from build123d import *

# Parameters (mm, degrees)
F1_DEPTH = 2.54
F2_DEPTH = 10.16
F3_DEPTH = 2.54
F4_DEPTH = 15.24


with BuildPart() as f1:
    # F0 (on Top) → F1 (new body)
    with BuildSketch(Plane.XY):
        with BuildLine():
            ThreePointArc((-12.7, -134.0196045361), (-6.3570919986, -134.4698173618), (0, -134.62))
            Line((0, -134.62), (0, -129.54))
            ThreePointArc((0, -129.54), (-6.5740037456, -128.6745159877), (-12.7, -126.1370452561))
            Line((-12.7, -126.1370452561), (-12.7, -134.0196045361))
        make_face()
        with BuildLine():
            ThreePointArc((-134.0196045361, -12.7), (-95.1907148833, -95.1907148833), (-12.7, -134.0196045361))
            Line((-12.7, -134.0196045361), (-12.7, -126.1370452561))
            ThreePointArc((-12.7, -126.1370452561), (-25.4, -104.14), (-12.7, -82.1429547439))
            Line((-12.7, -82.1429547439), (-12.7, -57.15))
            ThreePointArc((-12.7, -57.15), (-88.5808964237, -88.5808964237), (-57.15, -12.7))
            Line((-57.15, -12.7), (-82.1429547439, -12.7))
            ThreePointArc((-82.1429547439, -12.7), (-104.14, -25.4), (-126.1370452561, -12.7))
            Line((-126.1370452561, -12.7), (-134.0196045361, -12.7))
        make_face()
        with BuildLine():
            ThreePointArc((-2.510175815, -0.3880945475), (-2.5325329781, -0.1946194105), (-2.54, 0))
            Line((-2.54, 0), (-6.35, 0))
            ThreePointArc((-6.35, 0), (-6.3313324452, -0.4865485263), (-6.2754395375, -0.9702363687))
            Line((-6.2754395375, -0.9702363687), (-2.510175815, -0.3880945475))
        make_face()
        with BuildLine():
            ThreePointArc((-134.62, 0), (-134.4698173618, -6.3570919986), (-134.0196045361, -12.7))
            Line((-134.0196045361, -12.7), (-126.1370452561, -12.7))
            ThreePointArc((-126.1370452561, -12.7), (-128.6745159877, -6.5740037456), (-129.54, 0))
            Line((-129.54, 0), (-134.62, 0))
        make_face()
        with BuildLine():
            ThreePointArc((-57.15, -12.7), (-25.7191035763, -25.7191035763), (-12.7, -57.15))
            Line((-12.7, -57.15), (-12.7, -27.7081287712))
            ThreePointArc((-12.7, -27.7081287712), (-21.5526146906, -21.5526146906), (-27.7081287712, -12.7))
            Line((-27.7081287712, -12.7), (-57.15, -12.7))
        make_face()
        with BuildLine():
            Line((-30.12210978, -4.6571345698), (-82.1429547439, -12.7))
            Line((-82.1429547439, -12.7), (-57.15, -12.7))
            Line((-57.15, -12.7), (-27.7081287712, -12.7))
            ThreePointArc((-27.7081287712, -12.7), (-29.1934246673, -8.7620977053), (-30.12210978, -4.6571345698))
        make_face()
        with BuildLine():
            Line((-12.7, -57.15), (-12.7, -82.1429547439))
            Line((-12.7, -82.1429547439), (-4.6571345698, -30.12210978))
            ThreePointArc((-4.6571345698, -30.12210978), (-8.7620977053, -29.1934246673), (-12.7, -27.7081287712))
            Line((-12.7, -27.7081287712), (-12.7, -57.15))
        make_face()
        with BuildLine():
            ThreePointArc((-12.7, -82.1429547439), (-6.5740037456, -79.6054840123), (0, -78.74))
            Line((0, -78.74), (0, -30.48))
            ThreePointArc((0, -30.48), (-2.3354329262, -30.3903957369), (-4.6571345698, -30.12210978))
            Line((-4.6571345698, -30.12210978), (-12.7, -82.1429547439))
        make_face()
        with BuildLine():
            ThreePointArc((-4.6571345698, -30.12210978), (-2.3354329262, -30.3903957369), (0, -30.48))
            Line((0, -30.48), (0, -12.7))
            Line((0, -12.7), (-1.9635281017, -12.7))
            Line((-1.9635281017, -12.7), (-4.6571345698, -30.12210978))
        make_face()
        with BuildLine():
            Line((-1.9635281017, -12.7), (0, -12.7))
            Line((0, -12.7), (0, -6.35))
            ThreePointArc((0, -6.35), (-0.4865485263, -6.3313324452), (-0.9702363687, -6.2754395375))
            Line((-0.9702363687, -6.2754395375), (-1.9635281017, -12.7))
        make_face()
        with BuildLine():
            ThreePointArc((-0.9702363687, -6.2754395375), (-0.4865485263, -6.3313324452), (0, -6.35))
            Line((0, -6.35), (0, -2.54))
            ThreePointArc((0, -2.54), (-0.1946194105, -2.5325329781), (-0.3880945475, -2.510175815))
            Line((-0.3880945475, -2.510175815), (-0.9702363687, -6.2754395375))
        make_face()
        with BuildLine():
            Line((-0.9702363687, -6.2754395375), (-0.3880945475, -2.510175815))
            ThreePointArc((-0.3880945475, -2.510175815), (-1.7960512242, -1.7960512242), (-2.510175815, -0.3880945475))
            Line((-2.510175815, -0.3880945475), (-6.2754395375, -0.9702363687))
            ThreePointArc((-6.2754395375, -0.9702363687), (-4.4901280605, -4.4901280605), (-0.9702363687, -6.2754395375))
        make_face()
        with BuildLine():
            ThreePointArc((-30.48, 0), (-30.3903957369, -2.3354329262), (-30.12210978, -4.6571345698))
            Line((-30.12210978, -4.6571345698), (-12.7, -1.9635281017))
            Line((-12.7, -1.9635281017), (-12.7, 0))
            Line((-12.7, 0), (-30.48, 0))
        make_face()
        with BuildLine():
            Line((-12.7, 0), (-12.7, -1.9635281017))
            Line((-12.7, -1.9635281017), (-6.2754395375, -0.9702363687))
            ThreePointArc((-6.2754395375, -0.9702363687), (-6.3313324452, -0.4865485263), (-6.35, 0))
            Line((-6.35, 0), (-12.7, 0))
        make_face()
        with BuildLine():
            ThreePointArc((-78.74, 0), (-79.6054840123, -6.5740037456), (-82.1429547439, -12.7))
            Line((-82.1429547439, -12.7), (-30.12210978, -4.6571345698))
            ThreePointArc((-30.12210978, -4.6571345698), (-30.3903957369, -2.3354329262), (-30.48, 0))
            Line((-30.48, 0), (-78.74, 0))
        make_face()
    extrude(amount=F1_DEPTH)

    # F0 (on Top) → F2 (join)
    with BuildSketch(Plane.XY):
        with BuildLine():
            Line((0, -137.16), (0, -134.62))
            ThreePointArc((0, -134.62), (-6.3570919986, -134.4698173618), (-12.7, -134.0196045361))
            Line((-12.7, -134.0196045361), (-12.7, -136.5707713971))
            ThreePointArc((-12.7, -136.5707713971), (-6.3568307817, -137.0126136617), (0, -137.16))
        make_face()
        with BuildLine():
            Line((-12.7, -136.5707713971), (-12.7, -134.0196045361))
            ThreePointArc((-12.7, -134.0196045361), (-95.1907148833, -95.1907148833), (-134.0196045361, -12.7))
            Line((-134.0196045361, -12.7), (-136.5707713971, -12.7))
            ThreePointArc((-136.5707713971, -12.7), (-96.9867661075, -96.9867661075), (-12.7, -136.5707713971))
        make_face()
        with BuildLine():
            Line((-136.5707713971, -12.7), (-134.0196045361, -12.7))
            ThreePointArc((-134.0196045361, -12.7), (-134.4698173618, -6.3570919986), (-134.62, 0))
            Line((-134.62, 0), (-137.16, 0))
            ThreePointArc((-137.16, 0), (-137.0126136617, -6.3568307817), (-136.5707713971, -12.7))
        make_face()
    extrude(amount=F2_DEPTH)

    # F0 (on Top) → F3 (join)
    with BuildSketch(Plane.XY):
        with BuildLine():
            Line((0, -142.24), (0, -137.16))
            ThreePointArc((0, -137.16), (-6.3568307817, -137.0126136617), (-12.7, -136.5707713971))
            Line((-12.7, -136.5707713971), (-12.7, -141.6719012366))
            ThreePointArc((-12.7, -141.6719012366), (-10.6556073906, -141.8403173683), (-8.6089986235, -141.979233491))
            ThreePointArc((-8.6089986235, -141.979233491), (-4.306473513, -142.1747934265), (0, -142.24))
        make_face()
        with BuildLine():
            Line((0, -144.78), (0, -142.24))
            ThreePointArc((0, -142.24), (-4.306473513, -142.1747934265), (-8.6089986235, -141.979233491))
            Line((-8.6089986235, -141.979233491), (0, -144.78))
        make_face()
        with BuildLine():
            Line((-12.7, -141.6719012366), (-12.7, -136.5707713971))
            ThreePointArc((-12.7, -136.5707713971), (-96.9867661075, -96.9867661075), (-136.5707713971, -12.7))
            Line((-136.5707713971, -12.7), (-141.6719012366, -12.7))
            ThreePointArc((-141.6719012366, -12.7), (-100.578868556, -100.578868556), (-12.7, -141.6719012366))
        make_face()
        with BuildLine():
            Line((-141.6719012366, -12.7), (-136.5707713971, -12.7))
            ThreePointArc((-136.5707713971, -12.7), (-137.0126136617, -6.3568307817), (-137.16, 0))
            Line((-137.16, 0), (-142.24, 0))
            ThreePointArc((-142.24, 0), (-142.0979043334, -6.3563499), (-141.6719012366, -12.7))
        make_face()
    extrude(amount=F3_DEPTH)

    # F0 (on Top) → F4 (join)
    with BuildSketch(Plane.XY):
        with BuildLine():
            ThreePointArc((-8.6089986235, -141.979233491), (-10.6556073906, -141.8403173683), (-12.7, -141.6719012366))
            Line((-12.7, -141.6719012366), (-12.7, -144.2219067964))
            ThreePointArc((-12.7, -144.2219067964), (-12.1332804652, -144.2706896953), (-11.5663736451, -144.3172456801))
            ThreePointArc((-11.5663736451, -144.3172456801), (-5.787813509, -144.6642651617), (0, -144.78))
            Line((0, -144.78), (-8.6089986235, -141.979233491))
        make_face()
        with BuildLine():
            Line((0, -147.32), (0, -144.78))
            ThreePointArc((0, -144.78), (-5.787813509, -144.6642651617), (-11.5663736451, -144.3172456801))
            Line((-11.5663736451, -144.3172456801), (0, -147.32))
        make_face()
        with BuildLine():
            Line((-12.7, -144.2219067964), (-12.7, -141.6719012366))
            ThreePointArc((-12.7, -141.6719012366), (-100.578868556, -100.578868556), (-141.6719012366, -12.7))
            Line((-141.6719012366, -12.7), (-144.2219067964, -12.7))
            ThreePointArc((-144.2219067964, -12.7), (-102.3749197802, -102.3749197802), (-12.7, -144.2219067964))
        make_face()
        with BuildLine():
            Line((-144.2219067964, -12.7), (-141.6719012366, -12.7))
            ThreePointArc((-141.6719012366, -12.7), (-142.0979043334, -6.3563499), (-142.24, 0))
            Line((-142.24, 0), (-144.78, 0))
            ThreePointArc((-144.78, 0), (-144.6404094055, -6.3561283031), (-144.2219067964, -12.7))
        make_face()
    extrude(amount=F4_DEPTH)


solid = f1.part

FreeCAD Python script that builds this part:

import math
import FreeCAD as App
import Part
import Sketcher

V = App.Vector
Q = App.Units.Quantity

doc = App.newDocument("Part")
body = doc.addObject("PartDesign::Body", "Body")

sketch1 = body.newObject("Sketcher::SketchObject", "Sketch")
sketch1.AttachmentSupport = (doc.getObject("XY_Plane"), [""])
sketch1.MapMode = "FlatFace"
sketch1.addGeometry([
    Part.LineSegment(V(-2.54, 0, 0), V(-78.74, 0, 0)),
    Part.ArcOfCircle(Part.Circle(V(-104.14, 0, 0), V(0, 0, 1), 25.4), math.radians(-30), math.radians(0)),
    Part.ArcOfCircle(Part.Circle(V(-104.14, 0, 0), V(0, 0, 1), 25.4), math.radians(-150), math.radians(-30)),
    Part.ArcOfCircle(Part.Circle(V(-104.14, 0, 0), V(0, 0, 1), 25.4), math.radians(180), math.radians(210)),
    Part.LineSegment(V(-129.54, 0, 0), V(-134.62, 0, 0)),
    Part.ArcOfCircle(Part.Circle(V(0, 0, 0), V(0, 0, 1), 134.62), math.radians(-180), math.radians(-174.586688)),
    Part.ArcOfCircle(Part.Circle(V(0, 0, 0), V(0, 0, 1), 134.62), math.radians(-174.586688), math.radians(-95.413312)),
    Part.ArcOfCircle(Part.Circle(V(0, 0, 0), V(0, 0, 1), 134.62), math.radians(-95.413312), math.radians(-90)),
    Part.LineSegment(V(0, -134.62, 0), V(0, -129.54, 0)),
    Part.ArcOfCircle(Part.Circle(V(0, -104.14, 0), V(0, 0, 1), 25.4), math.radians(-120), math.radians(-90)),
    Part.ArcOfCircle(Part.Circle(V(0, -104.14, 0), V(0, 0, 1), 25.4), math.radians(120), math.radians(240)),
    Part.ArcOfCircle(Part.Circle(V(0, -104.14, 0), V(0, 0, 1), 25.4), math.radians(90), math.radians(120)),
    Part.LineSegment(V(0, -78.74, 0), V(0, -2.54, 0)),
    Part.ArcOfCircle(Part.Circle(V(0, 0, 0), V(0, 0, 1), 2.54), math.radians(-98.788827), math.radians(-90)),
    Part.ArcOfCircle(Part.Circle(V(0, 0, 0), V(0, 0, 1), 2.54), math.radians(-171.211173), math.radians(-98.788827)),
    Part.ArcOfCircle(Part.Circle(V(0, 0, 0), V(0, 0, 1), 2.54), math.radians(180), math.radians(188.788827)),
    Part.ArcOfCircle(Part.Circle(V(-57.15, -57.15, 0), V(0, 0, 1), 44.45), math.radians(0), math.radians(90)),
    Part.ArcOfCircle(Part.Circle(V(-57.15, -57.15, 0), V(0, 0, 1), 44.45), math.radians(90), math.radians(360)),
    Part.ArcOfCircle(Part.Circle(V(0, 0, 0), V(0, 0, 1), 30.48), math.radians(-171.211173), math.radians(-155.375682)),
    Part.LineSegment(V(-30.12211, -4.657135, 0), V(-12.7, -1.963528, 0)),
    Part.LineSegment(V(-12.7, -1.963528, 0), V(-6.27544, -0.970236, 0)),
    Part.ArcOfCircle(Part.Circle(V(0, 0, 0), V(0, 0, 1), 6.35), math.radians(-171.211173), math.radians(-98.788827)),
    Part.LineSegment(V(-0.970236, -6.27544, 0), V(-1.963528, -12.7, 0)),
    Part.LineSegment(V(-1.963528, -12.7, 0), V(-4.657135, -30.12211, 0)),
    Part.ArcOfCircle(Part.Circle(V(0, 0, 0), V(0, 0, 1), 30.48), math.radians(-114.624318), math.radians(-98.788827)),
    Part.ArcOfCircle(Part.Circle(V(0, 0, 0), V(0, 0, 1), 30.48), math.radians(-155.375682), math.radians(-114.624318)),
], False)
sketch1.addConstraint([
    Sketcher.Constraint("Coincident", 0, 2, 1, 2),
    Sketcher.Constraint("Tangent", 1, 1, 2, 2),
    Sketcher.Constraint("Tangent", 2, 1, 3, 2),
    Sketcher.Constraint("Coincident", 3, 1, 4, 1),
    Sketcher.Constraint("Coincident", 4, 2, 5, 1),
    Sketcher.Constraint("Tangent", 5, 2, 6, 1),
    Sketcher.Constraint("Tangent", 6, 2, 7, 1),
    Sketcher.Constraint("Coincident", 7, 2, 8, 1),
    Sketcher.Constraint("Coincident", 8, 2, 9, 2),
    Sketcher.Constraint("Tangent", 9, 1, 10, 2),
    Sketcher.Constraint("Tangent", 10, 1, 11, 2),
    Sketcher.Constraint("Coincident", 11, 1, 12, 1),
    Sketcher.Constraint("Coincident", 12, 2, 13, 2),
    Sketcher.Constraint("Tangent", 13, 1, 14, 2),
    Sketcher.Constraint("Tangent", 14, 1, 15, 2),
    Sketcher.Constraint("Coincident", 15, 1, 0, 1),
    Sketcher.Constraint("Tangent", 16, 1, 17, 2),
    Sketcher.Constraint("Coincident", 17, 1, 16, 2),
    Sketcher.Constraint("Coincident", 18, 1, 19, 1),
    Sketcher.Constraint("Coincident", 19, 2, 20, 1),
    Sketcher.Constraint("Coincident", 20, 2, 21, 1),
    Sketcher.Constraint("Coincident", 21, 2, 22, 1),
    Sketcher.Constraint("Coincident", 22, 2, 23, 1),
    Sketcher.Constraint("Coincident", 23, 2, 24, 2),
    Sketcher.Constraint("Tangent", 24, 1, 25, 2),
    Sketcher.Constraint("Tangent", 25, 1, 18, 2),
    Sketcher.Constraint("Horizontal", 0),
    Sketcher.Constraint("Horizontal", 4),
    Sketcher.Constraint("Vertical", 8),
    Sketcher.Constraint("Vertical", 12),
    Sketcher.Constraint("Coincident", 5, 3, -1, 1),
    Sketcher.Constraint("Coincident", 7, 3, -1, 1),
    Sketcher.Constraint("Coincident", 13, 3, -1, 1),
    Sketcher.Constraint("Coincident", 15, 3, -1, 1),
    Sketcher.Constraint("Coincident", 18, 3, -1, 1),
    Sketcher.Constraint("Coincident", 21, 3, -1, 1),
    Sketcher.Constraint("Coincident", 24, 3, -1, 1),
    Sketcher.Constraint("Coincident", 3, 3, 1, 3),
    Sketcher.Constraint("Coincident", 11, 3, 9, 3),
    Sketcher.Constraint("Equal", 3, 9),
    Sketcher.Constraint("PointOnObject", 1, 3, -1),
    Sketcher.Constraint("PointOnObject", 9, 3, -2),
    Sketcher.Constraint("PointOnObject", 0, 2, -1),
    Sketcher.Constraint("PointOnObject", 3, 1, -1),
    Sketcher.Constraint("PointOnObject", 7, 2, -2),
    Sketcher.Constraint("PointOnObject", 11, 1, -2),
    Sketcher.Constraint("Parallel", 19, 20),
    Sketcher.Constraint("Parallel", 22, 23),
    Sketcher.Constraint("Horizontal", 1, 1, 2, 1),
    Sketcher.Constraint("Horizontal", 2, 1, 5, 2),
    Sketcher.Constraint("Horizontal", 17, 3, 16, 1),
    Sketcher.Constraint("Horizontal", 5, 2, 17, 1),
    Sketcher.Constraint("Horizontal", 17, 1, 22, 2),
    Sketcher.Constraint("Horizontal", 22, 2, 25, 1),
    Sketcher.Constraint("Vertical", 6, 2, 9, 1),
    Sketcher.Constraint("Vertical", 9, 1, 10, 1),
    Sketcher.Constraint("Vertical", 10, 1, 16, 1),
    Sketcher.Constraint("Vertical", 16, 3, 17, 1),
    Sketcher.Constraint("Vertical", 16, 1, 19, 2),
    Sketcher.Constraint("Vertical", 19, 2, 24, 1),
    Sketcher.Constraint("Equal", 4, 8),
    Sketcher.Constraint("Equal", 20, 22),
    Sketcher.Constraint("Radius", 1, Q("1 in")),
    Sketcher.Constraint("Radius", 5, Q("5.3 in")),
    Sketcher.Constraint("Radius", 13, Q("0.1 in")),
    Sketcher.Constraint("Radius", 18, Q("1.2 in")),
    Sketcher.Constraint("DistanceX", 0, 2, 0, 1, Q("3 in")),
    Sketcher.Constraint("Radius", 16, Q("1.75 in")),
    Sketcher.Constraint("Radius", 21, Q("0.25 in")),
    Sketcher.Constraint("DistanceY", 1, 1, -1, 1, Q("0.5 in")),
    Sketcher.Constraint("DistanceX", 9, 1, -1, 1, Q("0.5 in")),
    Sketcher.Constraint("DistanceX", 23, 2, 21, 2, Q("3.686898 mm")),
    Sketcher.Constraint("DistanceY", 24, 1, 19, 2, Q("25.744601 mm")),
    Sketcher.Constraint("DistanceX", 18, 1, -1, 1, Q("30.12211 mm")),
    Sketcher.Constraint("DistanceY", 18, 1, 14, 1, Q("4.26904 mm")),
    Sketcher.Constraint("DistanceY", 18, 1, 13, 1, Q("2.146959 mm")),
])
pad1 = body.newObject("PartDesign::Pad", "Pad")
pad1.Profile = sketch1
pad1.Length = Q("0.1 in")

sketch2 = body.newObject("Sketcher::SketchObject", "Sketch001")
sketch2.AttachmentSupport = (doc.getObject("XY_Plane"), [""])
sketch2.MapMode = "FlatFace"
sketch2.addGeometry([
    Part.LineSegment(V(0, -137.16, 0), V(0, -134.62, 0)),
    Part.ArcOfCircle(Part.Circle(V(0, 0, 0), V(0, 0, 1), 134.62), math.radians(-95.413312), math.radians(-90)),
    Part.ArcOfCircle(Part.Circle(V(0, 0, 0), V(0, 0, 1), 134.62), math.radians(-174.586688), math.radians(-95.413312)),
    Part.ArcOfCircle(Part.Circle(V(0, 0, 0), V(0, 0, 1), 134.62), math.radians(-180), math.radians(-174.586688)),
    Part.LineSegment(V(-134.62, 0, 0), V(-137.16, 0, 0)),
    Part.ArcOfCircle(Part.Circle(V(0, 0, 0), V(0, 0, 1), 137.16), math.radians(180), math.radians(185.312775)),
    Part.ArcOfCircle(Part.Circle(V(0, 0, 0), V(0, 0, 1), 137.16), math.radians(-174.687225), math.radians(-95.312775)),
    Part.ArcOfCircle(Part.Circle(V(0, 0, 0), V(0, 0, 1), 137.16), math.radians(-95.312775), math.radians(-90)),
], False)
sketch2.addConstraint([
    Sketcher.Constraint("Coincident", 0, 2, 1, 2),
    Sketcher.Constraint("Tangent", 1, 1, 2, 2),
    Sketcher.Constraint("Tangent", 2, 1, 3, 2),
    Sketcher.Constraint("Coincident", 3, 1, 4, 1),
    Sketcher.Constraint("Coincident", 4, 2, 5, 1),
    Sketcher.Constraint("Tangent", 5, 2, 6, 1),
    Sketcher.Constraint("Tangent", 6, 2, 7, 1),
    Sketcher.Constraint("Coincident", 7, 2, 0, 1),
    Sketcher.Constraint("Vertical", 0),
    Sketcher.Constraint("Horizontal", 4),
    Sketcher.Constraint("Coincident", 1, 3, -1, 1),
    Sketcher.Constraint("Coincident", 3, 3, -1, 1),
    Sketcher.Constraint("Coincident", 5, 3, -1, 1),
    Sketcher.Constraint("Coincident", 7, 3, -1, 1),
    Sketcher.Constraint("PointOnObject", 0, 2, -2),
    Sketcher.Constraint("PointOnObject", 3, 1, -1),
    Sketcher.Constraint("Horizontal", 2, 1, 5, 2),
    Sketcher.Constraint("Vertical", 1, 1, 6, 2),
    Sketcher.Constraint("Radius", 1, Q("5.3 in")),
    Sketcher.Constraint("Radius", 5, Q("5.4 in")),
    Sketcher.Constraint("DistanceX", 1, 1, -1, 1, Q("0.5 in")),
    Sketcher.Constraint("DistanceY", 2, 1, -1, 1, Q("0.5 in")),
])
pad2 = body.newObject("PartDesign::Pad", "Pad001")
pad2.Profile = sketch2
pad2.Length = Q("0.4 in")

sketch3 = body.newObject("Sketcher::SketchObject", "Sketch002")
sketch3.AttachmentSupport = (doc.getObject("XY_Plane"), [""])
sketch3.MapMode = "FlatFace"
sketch3.addGeometry([
    Part.ArcOfCircle(Part.Circle(V(0, 0, 0), V(0, 0, 1), 137.16), math.radians(-95.312775), math.radians(-90)),
    Part.ArcOfCircle(Part.Circle(V(0, 0, 0), V(0, 0, 1), 137.16), math.radians(-174.687225), math.radians(-95.312775)),
    Part.ArcOfCircle(Part.Circle(V(0, 0, 0), V(0, 0, 1), 137.16), math.radians(180), math.radians(185.312775)),
    Part.LineSegment(V(-137.16, 0, 0), V(-142.24, 0, 0)),
    Part.ArcOfCircle(Part.Circle(V(0, 0, 0), V(0, 0, 1), 142.24), math.radians(180), math.radians(185.122516)),
    Part.ArcOfCircle(Part.Circle(V(0, 0, 0), V(0, 0, 1), 142.24), math.radians(-174.877484), math.radians(-95.122516)),
    Part.ArcOfCircle(Part.Circle(V(0, 0, 0), V(0, 0, 1), 142.24), math.radians(-95.122516), math.radians(-93.469917)),
    Part.LineSegment(V(-8.608999, -141.979233, 0), V(0, -144.78, 0)),
    Part.LineSegment(V(0, -144.78, 0), V(0, -137.16, 0)),
], False)
sketch3.addConstraint([
    Sketcher.Constraint("Tangent", 0, 1, 1, 2),
    Sketcher.Constraint("Tangent", 1, 1, 2, 2),
    Sketcher.Constraint("Coincident", 2, 1, 3, 1),
    Sketcher.Constraint("Coincident", 3, 2, 4, 1),
    Sketcher.Constraint("Tangent", 4, 2, 5, 1),
    Sketcher.Constraint("Tangent", 5, 2, 6, 1),
    Sketcher.Constraint("Coincident", 6, 2, 7, 1),
    Sketcher.Constraint("Coincident", 7, 2, 8, 1),
    Sketcher.Constraint("Coincident", 8, 2, 0, 2),
    Sketcher.Constraint("Horizontal", 3),
    Sketcher.Constraint("Vertical", 8),
    Sketcher.Constraint("Coincident", 0, 3, -1, 1),
    Sketcher.Constraint("Coincident", 2, 3, -1, 1),
    Sketcher.Constraint("Coincident", 4, 3, -1, 1),
    Sketcher.Constraint("Coincident", 6, 3, -1, 1),
    Sketcher.Constraint("PointOnObject", 2, 1, -1),
    Sketcher.Constraint("PointOnObject", 7, 2, -2),
    Sketcher.Constraint("Horizontal", 1, 1, 4, 2),
    Sketcher.Constraint("Vertical", 0, 1, 5, 2),
    Sketcher.Constraint("Radius", 0, Q("5.4 in")),
    Sketcher.Constraint("Radius", 4, Q("5.6 in")),
    Sketcher.Constraint("DistanceY", 8, 1, 8, 2, Q("0.3 in")),
    Sketcher.Constraint("DistanceX", 0, 1, -1, 1, Q("0.5 in")),
    Sketcher.Constraint("DistanceY", 1, 1, -1, 1, Q("0.5 in")),
    Sketcher.Constraint("DistanceX", 6, 2, -1, 1, Q("8.608999 mm")),
])
pad3 = body.newObject("PartDesign::Pad", "Pad002")
pad3.Profile = sketch3
pad3.Length = Q("0.1 in")

sketch4 = body.newObject("Sketcher::SketchObject", "Sketch003")
sketch4.AttachmentSupport = (doc.getObject("XY_Plane"), [""])
sketch4.MapMode = "FlatFace"
sketch4.addGeometry([
    Part.ArcOfCircle(Part.Circle(V(0, 0, 0), V(0, 0, 1), 142.24), math.radians(-95.122516), math.radians(-93.469917)),
    Part.ArcOfCircle(Part.Circle(V(0, 0, 0), V(0, 0, 1), 142.24), math.radians(-174.877484), math.radians(-95.122516)),
    Part.ArcOfCircle(Part.Circle(V(0, 0, 0), V(0, 0, 1), 142.24), math.radians(180), math.radians(185.122516)),
    Part.LineSegment(V(-142.24, 0, 0), V(-144.78, 0, 0)),
    Part.ArcOfCircle(Part.Circle(V(0, 0, 0), V(0, 0, 1), 144.78), math.radians(180), math.radians(185.032413)),
    Part.ArcOfCircle(Part.Circle(V(0, 0, 0), V(0, 0, 1), 144.78), math.radians(-174.967587), math.radians(-95.032413)),
    Part.ArcOfCircle(Part.Circle(V(-0.000001, -0.000007, 0), V(0, 0, 1), 144.779993), math.radians(-95.032414), math.radians(-94.582203)),
    Part.LineSegment(V(-11.566374, -144.317246, 0), V(0, -147.32, 0)),
    Part.LineSegment(V(0, -147.32, 0), V(0, -144.78, 0)),
    Part.LineSegment(V(0, -144.78, 0), V(-8.608999, -141.979233, 0)),
], False)
sketch4.addConstraint([
    Sketcher.Constraint("Tangent", 0, 1, 1, 2),
    Sketcher.Constraint("Tangent", 1, 1, 2, 2),
    Sketcher.Constraint("Coincident", 2, 1, 3, 1),
    Sketcher.Constraint("Coincident", 3, 2, 4, 1),
    Sketcher.Constraint("Tangent", 4, 2, 5, 1),
    Sketcher.Constraint("Tangent", 5, 2, 6, 1),
    Sketcher.Constraint("Coincident", 6, 2, 7, 1),
    Sketcher.Constraint("Coincident", 7, 2, 8, 1),
    Sketcher.Constraint("Coincident", 8, 2, 9, 1),
    Sketcher.Constraint("Coincident", 9, 2, 0, 2),
    Sketcher.Constraint("Horizontal", 3),
    Sketcher.Constraint("Vertical", 8),
    Sketcher.Constraint("Coincident", 0, 3, -1, 1),
    Sketcher.Constraint("Coincident", 2, 3, -1, 1),
    Sketcher.Constraint("Coincident", 4, 3, -1, 1),
    Sketcher.Constraint("Coincident", 6, 3, -1, 1),
    Sketcher.Constraint("PointOnObject", 2, 1, -1),
    Sketcher.Constraint("PointOnObject", 7, 2, -2),
    Sketcher.Constraint("Horizontal", 1, 1, 4, 2),
    Sketcher.Constraint("Vertical", 0, 1, 5, 2),
    Sketcher.Constraint("Equal", 3, 8),
    Sketcher.Constraint("Radius", 0, Q("5.6 in")),
    Sketcher.Constraint("Radius", 4, Q("5.7 in")),
    Sketcher.Constraint("DistanceX", 0, 1, -1, 1, Q("0.5 in")),
    Sketcher.Constraint("DistanceY", 1, 1, -1, 1, Q("0.5 in")),
    Sketcher.Constraint("DistanceY", 7, 2, -1, 1, Q("5.8 in")),
    Sketcher.Constraint("DistanceX", 9, 2, -1, 1, Q("8.608999 mm")),
    Sketcher.Constraint("DistanceY", 6, 2, 5, 2, Q("0.095339 mm")),
])
pad4 = body.newObject("PartDesign::Pad", "Pad003")
pad4.Profile = sketch4
pad4.Length = Q("0.6 in")

doc.recompute()
